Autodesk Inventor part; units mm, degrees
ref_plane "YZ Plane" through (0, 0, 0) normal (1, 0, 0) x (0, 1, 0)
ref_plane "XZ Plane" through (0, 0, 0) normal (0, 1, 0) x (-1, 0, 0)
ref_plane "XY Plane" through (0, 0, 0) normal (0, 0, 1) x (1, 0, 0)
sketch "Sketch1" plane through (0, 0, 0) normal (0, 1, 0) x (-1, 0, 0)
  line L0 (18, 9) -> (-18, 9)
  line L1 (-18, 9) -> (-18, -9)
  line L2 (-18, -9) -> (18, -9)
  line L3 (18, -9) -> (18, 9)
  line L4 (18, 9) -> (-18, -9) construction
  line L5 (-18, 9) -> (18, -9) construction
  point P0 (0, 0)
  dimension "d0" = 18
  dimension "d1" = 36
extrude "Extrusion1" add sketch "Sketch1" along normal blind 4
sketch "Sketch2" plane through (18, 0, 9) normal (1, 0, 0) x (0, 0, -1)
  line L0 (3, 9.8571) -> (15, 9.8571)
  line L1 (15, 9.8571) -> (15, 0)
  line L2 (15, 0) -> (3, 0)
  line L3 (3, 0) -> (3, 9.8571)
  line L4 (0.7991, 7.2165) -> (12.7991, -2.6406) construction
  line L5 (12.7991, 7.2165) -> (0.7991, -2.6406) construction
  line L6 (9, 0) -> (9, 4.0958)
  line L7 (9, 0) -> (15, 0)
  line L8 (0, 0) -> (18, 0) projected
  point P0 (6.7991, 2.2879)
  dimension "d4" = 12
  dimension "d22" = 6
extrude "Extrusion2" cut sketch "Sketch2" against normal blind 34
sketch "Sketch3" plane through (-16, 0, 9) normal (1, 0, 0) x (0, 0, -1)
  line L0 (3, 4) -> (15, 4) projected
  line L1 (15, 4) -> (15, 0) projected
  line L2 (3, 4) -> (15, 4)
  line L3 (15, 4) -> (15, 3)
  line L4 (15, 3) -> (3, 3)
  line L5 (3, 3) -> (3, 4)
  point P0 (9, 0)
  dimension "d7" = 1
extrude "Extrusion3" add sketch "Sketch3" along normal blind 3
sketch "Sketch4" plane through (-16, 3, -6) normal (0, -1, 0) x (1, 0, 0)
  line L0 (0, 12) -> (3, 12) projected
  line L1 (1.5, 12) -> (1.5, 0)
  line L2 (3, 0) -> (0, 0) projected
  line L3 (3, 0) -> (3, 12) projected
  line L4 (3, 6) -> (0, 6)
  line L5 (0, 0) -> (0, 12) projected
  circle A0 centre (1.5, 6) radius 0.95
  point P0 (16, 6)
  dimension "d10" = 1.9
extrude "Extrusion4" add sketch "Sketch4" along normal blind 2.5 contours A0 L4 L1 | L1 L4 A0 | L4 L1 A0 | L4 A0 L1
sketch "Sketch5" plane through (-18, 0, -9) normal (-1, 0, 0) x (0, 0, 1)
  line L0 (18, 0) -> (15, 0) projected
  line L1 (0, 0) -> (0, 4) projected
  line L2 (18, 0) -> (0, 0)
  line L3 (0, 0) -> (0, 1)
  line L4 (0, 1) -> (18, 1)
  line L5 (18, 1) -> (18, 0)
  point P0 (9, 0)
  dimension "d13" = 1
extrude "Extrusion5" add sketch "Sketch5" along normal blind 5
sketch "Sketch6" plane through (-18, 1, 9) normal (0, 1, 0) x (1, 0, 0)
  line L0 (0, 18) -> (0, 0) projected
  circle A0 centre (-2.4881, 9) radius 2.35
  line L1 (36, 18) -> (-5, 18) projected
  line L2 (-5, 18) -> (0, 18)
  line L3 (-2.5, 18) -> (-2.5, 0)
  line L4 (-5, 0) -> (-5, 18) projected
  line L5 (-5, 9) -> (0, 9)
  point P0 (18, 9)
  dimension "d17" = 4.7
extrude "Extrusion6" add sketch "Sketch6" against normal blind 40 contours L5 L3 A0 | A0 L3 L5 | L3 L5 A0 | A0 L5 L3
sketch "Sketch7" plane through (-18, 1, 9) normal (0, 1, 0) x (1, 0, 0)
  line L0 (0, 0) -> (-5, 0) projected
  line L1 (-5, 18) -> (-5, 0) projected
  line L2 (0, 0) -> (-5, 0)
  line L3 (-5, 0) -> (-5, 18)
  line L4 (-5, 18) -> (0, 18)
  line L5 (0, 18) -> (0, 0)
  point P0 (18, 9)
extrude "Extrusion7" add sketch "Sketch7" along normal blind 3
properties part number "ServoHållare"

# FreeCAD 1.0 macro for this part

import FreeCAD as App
import Part
import Sketcher
from FreeCAD import Vector
Q = App.Units.Quantity


def add_polygon(sketch, points):
    """Adds a closed chain of lines whose ends are joined by coincident constraints."""
    first, n = sketch.GeometryCount, len(points)
    for a, b in zip(points, points[1:] + points[:1]):
        sketch.addGeometry(Part.LineSegment(App.Vector(*a, 0), App.Vector(*b, 0)), False)
    for i in range(n):
        sketch.addConstraint(Sketcher.Constraint("Coincident", first + i, 2, first + (i + 1) % n, 1))

doc = App.newDocument("Part")
body = doc.addObject("PartDesign::Body", "Body")

sketch1 = doc.addObject("Sketcher::SketchObject", "Sketch")
body.addObject(sketch1)
sketch1.AttachmentSupport = (doc.XZ_Plane, [""])
sketch1.MapMode = "FlatFace"
add_polygon(sketch1, [(-18, -9), (-18, 9), (18, 9), (18, -9)])
sketch1.addConstraint([
    Sketcher.Constraint("Vertical", 0),
    Sketcher.Constraint("Horizontal", 1),
    Sketcher.Constraint("Vertical", 2),
    Sketcher.Constraint("Horizontal", 3),
    Sketcher.Constraint("Symmetric", 0, 2, 2, 2, -1, 1),
    Sketcher.Constraint("DistanceX", 1, 1, 1, 2, Q("36 mm")),
    Sketcher.Constraint("DistanceY", 0, 1, 0, 2, Q("18 mm")),
])
pad1 = doc.addObject("PartDesign::Pad", "Pad")
body.addObject(pad1)
pad1.Profile = sketch1
pad1.Length = 4
pad1.Reversed = True

sketch2 = doc.addObject("Sketcher::SketchObject", "Sketch001")
body.addObject(sketch2)
sketch2.AttachmentSupport = (doc.YZ_Plane, [""])
sketch2.MapMode = "FlatFace"
sketch2.AttachmentOffset = App.Placement(Vector(0, 0, 18), App.Rotation())
add_polygon(sketch2, [(10, -6), (10, 6), (0, 6), (0, -6)])
sketch2.addConstraint([
    Sketcher.Constraint("Vertical", 0),
    Sketcher.Constraint("Horizontal", 1),
    Sketcher.Constraint("Vertical", 2),
    Sketcher.Constraint("Horizontal", 3),
    Sketcher.Constraint("Symmetric", 1, 2, 2, 2, -1, 1),
    Sketcher.Constraint("DistanceY", 0, 1, 0, 2, Q("12 mm")),
    Sketcher.Constraint("DistanceX", 1, 2, 1, 1, Q("9.857 mm")),
])
pocket1 = doc.addObject("PartDesign::Pocket", "Pocket")
body.addObject(pocket1)
pocket1.Profile = sketch2
pocket1.Length = 34

sketch3 = doc.addObject("Sketcher::SketchObject", "Sketch002")
body.addObject(sketch3)
sketch3.AttachmentSupport = (doc.YZ_Plane, [""])
sketch3.MapMode = "FlatFace"
sketch3.AttachmentOffset = App.Placement(Vector(0, 0, -16), App.Rotation())
add_polygon(sketch3, [(4, -6), (4, 6), (3, 6), (3, -6)])
sketch3.addConstraint([
    Sketcher.Constraint("Vertical", 0),
    Sketcher.Constraint("Horizontal", 1),
    Sketcher.Constraint("Vertical", 2),
    Sketcher.Constraint("Horizontal", 3),
    Sketcher.Constraint("DistanceX", 1, 2, 1, 1, Q("1 mm")),
    Sketcher.Constraint("DistanceY", 0, 1, 0, 2, Q("12 mm")),
    Sketcher.Constraint("DistanceX", -1, 1, 0, 2, Q("4 mm")),
    Sketcher.Constraint("DistanceY", -1, 1, 0, 2, Q("6 mm")),
])
pad2 = doc.addObject("PartDesign::Pad", "Pad001")
body.addObject(pad2)
pad2.Profile = sketch3
pad2.Length = 3

sketch4 = doc.addObject("Sketcher::SketchObject", "Sketch003")
body.addObject(sketch4)
sketch4.AttachmentSupport = (doc.XZ_Plane, [""])
sketch4.MapMode = "FlatFace"
sketch4.AttachmentOffset = App.Placement(Vector(0, 0, -3), App.Rotation())
sketch4.addGeometry(Part.Circle(Vector(-14.5, 0, 0), Vector(0, 0, 1), 0.9), False)
sketch4.addConstraint([
    Sketcher.Constraint("PointOnObject", 0, 3, -1),
    Sketcher.Constraint("Diameter", 0, Q("1.9 mm")),
    Sketcher.Constraint("DistanceX", 0, 3, -1, 1, Q("14.5 mm")),
])
pad3 = doc.addObject("PartDesign::Pad", "Pad002")
body.addObject(pad3)
pad3.Profile = sketch4
pad3.Length = 2.5

sketch5 = doc.addObject("Sketcher::SketchObject", "Sketch004")
body.addObject(sketch5)
sketch5.AttachmentSupport = (doc.YZ_Plane, [""])
sketch5.MapMode = "FlatFace"
sketch5.AttachmentOffset = App.Placement(Vector(0, 0, -18), App.Rotation())
add_polygon(sketch5, [(0, -9), (0, 9), (1, 9), (1, -9)])
sketch5.addConstraint([
    Sketcher.Constraint("Vertical", 0),
    Sketcher.Constraint("Horizontal", 1),
    Sketcher.Constraint("Vertical", 2),
    Sketcher.Constraint("Horizontal", 3),
    Sketcher.Constraint("Symmetric", 0, 2, 3, 2, -1, 1),
    Sketcher.Constraint("DistanceX", 1, 1, 1, 2, Q("1 mm")),
    Sketcher.Constraint("DistanceY", 0, 1, 0, 2, Q("18 mm")),
])
pad4 = doc.addObject("PartDesign::Pad", "Pad003")
body.addObject(pad4)
pad4.Profile = sketch5
pad4.Length = 5
pad4.Reversed = True

sketch6 = doc.addObject("Sketcher::SketchObject", "Sketch005")
body.addObject(sketch6)
sketch6.AttachmentSupport = (doc.XZ_Plane, [""])
sketch6.MapMode = "FlatFace"
sketch6.AttachmentOffset = App.Placement(Vector(0, 0, -1), App.Rotation())
sketch6.addGeometry(Part.Circle(Vector(-20.5, 0, 0), Vector(0, 0, 1), 2.4), False)
sketch6.addConstraint([
    Sketcher.Constraint("PointOnObject", 0, 3, -1),
    Sketcher.Constraint("Diameter", 0, Q("4.7 mm")),
    Sketcher.Constraint("DistanceX", 0, 3, -1, 1, Q("20.488 mm")),
])
pad5 = doc.addObject("PartDesign::Pad", "Pad004")
body.addObject(pad5)
pad5.Profile = sketch6
pad5.Length = 40

sketch7 = doc.addObject("Sketcher::SketchObject", "Sketch006")
body.addObject(sketch7)
sketch7.AttachmentSupport = (doc.XZ_Plane, [""])
sketch7.MapMode = "FlatFace"
sketch7.AttachmentOffset = App.Placement(Vector(0, 0, -1), App.Rotation())
add_polygon(sketch7, [(-23, 9), (-18, 9), (-18, -9), (-23, -9)])
sketch7.addConstraint([
    Sketcher.Constraint("Horizontal", 0),
    Sketcher.Constraint("Vertical", 1),
    Sketcher.Constraint("Horizontal", 2),
    Sketcher.Constraint("Vertical", 3),
    Sketcher.Constraint("DistanceX", 0, 1, 0, 2, Q("5 mm")),
    Sketcher.Constraint("DistanceY", 1, 2, 1, 1, Q("18 mm")),
    Sketcher.Constraint("DistanceX", 0, 2, -1, 1, Q("18 mm")),
    Sketcher.Constraint("DistanceY", -1, 1, 0, 2, Q("9 mm")),
])
pad6 = doc.addObject("PartDesign::Pad", "Pad005")
body.addObject(pad6)
pad6.Profile = sketch7
pad6.Length = 3
pad6.Reversed = True

doc.recompute()
